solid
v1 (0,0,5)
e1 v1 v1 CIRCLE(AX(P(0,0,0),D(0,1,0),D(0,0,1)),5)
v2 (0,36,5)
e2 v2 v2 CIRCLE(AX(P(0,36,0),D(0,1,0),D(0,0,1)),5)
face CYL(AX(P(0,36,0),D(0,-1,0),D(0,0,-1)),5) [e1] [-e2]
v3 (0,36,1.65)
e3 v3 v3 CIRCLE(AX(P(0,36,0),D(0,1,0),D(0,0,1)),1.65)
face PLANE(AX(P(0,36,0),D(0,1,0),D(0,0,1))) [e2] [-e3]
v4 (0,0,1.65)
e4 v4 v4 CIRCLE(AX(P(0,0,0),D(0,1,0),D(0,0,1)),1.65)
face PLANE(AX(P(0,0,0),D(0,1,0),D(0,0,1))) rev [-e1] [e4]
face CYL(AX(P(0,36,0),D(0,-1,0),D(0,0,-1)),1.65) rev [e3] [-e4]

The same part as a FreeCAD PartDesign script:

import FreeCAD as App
import Part
import Sketcher
Q = App.Units.Quantity

doc = App.newDocument("Part")
body = doc.addObject("PartDesign::Body", "Body")

# Sketch on XZ plane
sketch1 = doc.addObject("Sketcher::SketchObject", "Sketch")
body.addObject(sketch1)
sketch1.AttachmentSupport = (doc.XZ_Plane, [""])
sketch1.MapMode = "FlatFace"
sketch1.addGeometry([
    Part.Circle(App.Vector(0, 0, 0), App.Vector(0, 0, 1), 5),
    Part.Circle(App.Vector(0, 0, 0), App.Vector(0, 0, 1), 1.6),
], False)
sketch1.addConstraint([
    Sketcher.Constraint("Coincident", 0, 3, -1, 1),
    Sketcher.Constraint("Coincident", 1, 3, -1, 1),
    Sketcher.Constraint("Diameter", 0, Q("10 mm")),
    Sketcher.Constraint("Diameter", 1, Q("3.3 mm")),
])
pad1 = doc.addObject("PartDesign::Pad", "Pad")
body.addObject(pad1)
pad1.Profile = sketch1
pad1.Length = 36
pad1.Reversed = True

doc.recompute()
